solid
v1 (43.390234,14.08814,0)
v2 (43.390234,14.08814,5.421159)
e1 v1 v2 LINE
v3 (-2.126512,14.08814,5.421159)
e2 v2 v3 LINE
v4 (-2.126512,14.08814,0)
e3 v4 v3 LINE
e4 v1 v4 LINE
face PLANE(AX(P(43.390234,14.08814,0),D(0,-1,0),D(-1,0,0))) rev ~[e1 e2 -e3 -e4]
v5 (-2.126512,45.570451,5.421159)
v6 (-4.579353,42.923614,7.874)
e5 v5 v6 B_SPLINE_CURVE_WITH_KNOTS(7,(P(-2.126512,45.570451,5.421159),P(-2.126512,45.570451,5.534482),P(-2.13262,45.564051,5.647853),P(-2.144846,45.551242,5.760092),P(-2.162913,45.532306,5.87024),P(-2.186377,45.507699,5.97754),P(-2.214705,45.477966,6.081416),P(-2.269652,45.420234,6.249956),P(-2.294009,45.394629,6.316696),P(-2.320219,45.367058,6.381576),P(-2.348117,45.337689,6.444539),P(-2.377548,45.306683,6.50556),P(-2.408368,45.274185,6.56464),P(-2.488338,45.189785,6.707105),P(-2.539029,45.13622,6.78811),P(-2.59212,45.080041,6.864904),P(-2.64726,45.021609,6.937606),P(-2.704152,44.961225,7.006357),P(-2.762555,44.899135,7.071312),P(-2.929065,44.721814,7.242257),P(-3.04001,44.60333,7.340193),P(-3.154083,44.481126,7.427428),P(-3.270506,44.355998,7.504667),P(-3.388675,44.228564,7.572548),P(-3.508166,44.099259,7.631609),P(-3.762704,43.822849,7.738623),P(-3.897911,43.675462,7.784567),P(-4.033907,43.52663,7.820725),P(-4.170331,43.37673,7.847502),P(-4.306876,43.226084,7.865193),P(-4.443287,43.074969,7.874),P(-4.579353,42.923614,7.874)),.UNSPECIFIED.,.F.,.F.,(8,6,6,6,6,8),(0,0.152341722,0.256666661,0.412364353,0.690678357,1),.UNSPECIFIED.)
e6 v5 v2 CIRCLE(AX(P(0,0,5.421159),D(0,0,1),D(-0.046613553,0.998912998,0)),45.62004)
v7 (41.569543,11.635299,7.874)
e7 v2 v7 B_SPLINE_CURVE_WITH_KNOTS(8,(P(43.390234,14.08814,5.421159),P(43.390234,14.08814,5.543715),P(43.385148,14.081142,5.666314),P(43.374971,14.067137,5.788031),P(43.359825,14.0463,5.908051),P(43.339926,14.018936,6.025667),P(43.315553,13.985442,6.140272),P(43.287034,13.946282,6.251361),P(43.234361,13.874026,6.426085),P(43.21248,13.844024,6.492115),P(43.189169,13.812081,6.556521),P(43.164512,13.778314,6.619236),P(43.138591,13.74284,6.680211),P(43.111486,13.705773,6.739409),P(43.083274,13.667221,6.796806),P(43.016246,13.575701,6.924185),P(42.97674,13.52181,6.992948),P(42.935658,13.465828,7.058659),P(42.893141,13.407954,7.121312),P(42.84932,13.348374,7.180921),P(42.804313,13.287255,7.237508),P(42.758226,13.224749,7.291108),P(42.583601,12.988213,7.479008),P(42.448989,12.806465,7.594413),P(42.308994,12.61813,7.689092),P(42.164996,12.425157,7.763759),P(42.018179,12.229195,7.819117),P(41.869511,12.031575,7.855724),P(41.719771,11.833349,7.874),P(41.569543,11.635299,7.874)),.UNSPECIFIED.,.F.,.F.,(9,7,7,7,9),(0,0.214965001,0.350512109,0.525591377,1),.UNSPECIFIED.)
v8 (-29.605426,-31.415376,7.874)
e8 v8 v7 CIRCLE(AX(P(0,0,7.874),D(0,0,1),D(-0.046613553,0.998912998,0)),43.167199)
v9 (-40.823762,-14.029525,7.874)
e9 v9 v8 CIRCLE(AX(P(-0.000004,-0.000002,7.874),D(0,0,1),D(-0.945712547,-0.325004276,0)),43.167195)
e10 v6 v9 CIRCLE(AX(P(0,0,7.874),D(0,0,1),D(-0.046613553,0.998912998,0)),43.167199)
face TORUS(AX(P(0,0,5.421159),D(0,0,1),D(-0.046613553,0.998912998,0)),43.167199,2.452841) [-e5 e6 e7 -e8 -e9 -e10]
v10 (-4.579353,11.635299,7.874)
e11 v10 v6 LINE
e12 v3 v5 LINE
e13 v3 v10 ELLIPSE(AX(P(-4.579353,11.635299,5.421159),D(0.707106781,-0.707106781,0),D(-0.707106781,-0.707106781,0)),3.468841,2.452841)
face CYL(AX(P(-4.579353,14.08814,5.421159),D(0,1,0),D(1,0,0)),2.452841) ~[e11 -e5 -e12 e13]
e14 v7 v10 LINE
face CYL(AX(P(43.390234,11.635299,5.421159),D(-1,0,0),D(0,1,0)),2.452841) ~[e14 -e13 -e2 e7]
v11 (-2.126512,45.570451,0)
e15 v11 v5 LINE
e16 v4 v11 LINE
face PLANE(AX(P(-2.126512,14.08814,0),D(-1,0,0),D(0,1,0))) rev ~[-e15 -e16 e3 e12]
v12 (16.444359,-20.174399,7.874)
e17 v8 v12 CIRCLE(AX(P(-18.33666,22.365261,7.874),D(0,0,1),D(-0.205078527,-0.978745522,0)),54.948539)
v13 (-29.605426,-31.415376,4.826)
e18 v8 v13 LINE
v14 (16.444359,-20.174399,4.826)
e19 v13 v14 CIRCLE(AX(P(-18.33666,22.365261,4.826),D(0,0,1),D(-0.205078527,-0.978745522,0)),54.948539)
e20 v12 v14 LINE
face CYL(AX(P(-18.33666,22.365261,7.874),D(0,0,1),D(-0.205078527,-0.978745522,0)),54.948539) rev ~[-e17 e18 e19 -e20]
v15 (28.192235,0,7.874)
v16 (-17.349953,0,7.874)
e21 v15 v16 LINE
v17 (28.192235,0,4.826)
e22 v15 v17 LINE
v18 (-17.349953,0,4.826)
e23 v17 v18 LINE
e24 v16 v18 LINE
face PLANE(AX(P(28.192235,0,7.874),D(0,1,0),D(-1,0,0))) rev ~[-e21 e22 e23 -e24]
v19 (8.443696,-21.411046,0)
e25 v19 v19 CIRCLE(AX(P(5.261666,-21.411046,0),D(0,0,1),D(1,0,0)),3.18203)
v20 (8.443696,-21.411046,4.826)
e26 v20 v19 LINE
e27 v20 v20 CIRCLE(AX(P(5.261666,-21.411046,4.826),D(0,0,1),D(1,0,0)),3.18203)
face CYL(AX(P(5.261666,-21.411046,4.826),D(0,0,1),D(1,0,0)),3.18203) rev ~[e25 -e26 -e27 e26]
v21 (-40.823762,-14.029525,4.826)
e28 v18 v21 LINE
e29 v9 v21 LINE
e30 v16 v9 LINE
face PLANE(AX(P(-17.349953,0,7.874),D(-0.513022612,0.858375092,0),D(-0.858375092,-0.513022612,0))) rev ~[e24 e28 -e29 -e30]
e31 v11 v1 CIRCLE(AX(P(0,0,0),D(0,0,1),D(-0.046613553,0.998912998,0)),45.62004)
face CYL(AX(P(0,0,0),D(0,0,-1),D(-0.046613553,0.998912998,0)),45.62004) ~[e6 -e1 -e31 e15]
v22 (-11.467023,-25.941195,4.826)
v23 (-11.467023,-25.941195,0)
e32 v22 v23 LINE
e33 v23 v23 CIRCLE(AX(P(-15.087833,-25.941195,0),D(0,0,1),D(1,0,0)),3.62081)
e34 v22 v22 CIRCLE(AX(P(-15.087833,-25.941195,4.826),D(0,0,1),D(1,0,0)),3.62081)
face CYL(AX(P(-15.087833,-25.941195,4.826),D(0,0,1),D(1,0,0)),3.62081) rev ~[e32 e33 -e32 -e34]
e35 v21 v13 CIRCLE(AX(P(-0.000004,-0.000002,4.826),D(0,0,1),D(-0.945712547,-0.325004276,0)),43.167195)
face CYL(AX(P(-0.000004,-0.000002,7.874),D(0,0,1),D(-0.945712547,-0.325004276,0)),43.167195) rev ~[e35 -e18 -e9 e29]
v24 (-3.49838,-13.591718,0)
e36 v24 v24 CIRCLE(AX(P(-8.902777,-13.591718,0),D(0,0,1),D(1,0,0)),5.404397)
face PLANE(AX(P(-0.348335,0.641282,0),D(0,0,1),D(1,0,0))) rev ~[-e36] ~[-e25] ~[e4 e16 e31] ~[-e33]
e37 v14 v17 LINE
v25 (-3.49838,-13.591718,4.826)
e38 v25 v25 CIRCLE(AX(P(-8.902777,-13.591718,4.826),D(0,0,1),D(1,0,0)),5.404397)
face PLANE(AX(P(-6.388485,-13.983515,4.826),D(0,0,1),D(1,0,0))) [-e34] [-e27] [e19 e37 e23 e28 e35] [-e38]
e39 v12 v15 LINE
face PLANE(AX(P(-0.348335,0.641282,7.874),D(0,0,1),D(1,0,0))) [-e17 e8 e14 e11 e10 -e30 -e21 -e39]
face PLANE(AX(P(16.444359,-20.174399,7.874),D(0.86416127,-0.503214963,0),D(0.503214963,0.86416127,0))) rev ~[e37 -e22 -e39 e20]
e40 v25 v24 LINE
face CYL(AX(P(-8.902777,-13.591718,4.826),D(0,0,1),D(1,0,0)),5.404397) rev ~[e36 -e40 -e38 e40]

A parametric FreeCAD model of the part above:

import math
import FreeCAD as App
import Part
import Sketcher
Q = App.Units.Quantity


def edges_at(feature, points):
    """Names of the edges that pass closest to the given points."""
    edges = feature.Shape.Edges
    near = lambda p: min(range(len(edges)), key=lambda i: edges[i].distToShape(Part.Vertex(*p))[0])
    return sorted({f"Edge{near(p) + 1}" for p in points})

doc = App.newDocument("Part")
params = doc.addObject("Spreadsheet::Sheet", "Params")
for row, (alias, value) in enumerate([
    ("pad1_length", "0.31 in"),
    ("fillet_radius", "2.452841 mm"),
    ("pocket1_length", "0.12 in"),
    ("pocket2_length", "1 in"),
], start=1):
    params.set(f"A{row}", alias)
    params.set(f"B{row}", "=" + value)
    params.setAlias(f"B{row}", alias)

body = doc.addObject("PartDesign::Body", "Body")

# Sketch on XY plane
sketch1 = body.newObject("Sketcher::SketchObject", "Sketch")
sketch1.AttachmentSupport = (doc.getObject("XY_Plane"), [""])
sketch1.MapMode = "FlatFace"
sketch1.addGeometry([
    Part.LineSegment(App.Vector(-2, 14, 0), App.Vector(-2, 46, 0)),
    Part.ArcOfCircle(Part.Circle(App.Vector(0, 0, 0), App.Vector(0, 0, 1), 46), math.radians(93), math.radians(378)),
    Part.LineSegment(App.Vector(43, 14, 0), App.Vector(-2, 14, 0)),
], False)
sketch1.addConstraint([
    Sketcher.Constraint("Coincident", 0, 2, 1, 1),
    Sketcher.Constraint("Coincident", 1, 2, 2, 1),
    Sketcher.Constraint("Coincident", 2, 2, 0, 1),
    Sketcher.Constraint("Vertical", 0),
    Sketcher.Constraint("Horizontal", 2),
    Sketcher.Constraint("Coincident", 1, 3, -1, 1),
    Sketcher.Constraint("Radius", 1, Q("45.62004 mm")),
    Sketcher.Constraint("DistanceY", 0, 1, 0, 2, Q("31.482311 mm")),
    Sketcher.Constraint("DistanceX", 2, 2, 2, 1, Q("45.516746 mm")),
])
pad1 = body.newObject("PartDesign::Pad", "Pad")
pad1.Profile = sketch1
pad1.setExpression("Length", "Params.pad1_length")
doc.recompute()

fillet = body.newObject("PartDesign::Fillet", "Fillet")
fillet.Base = (pad1, edges_at(pad1, [(20.632, 14.088, 7.874), (-2.127, 29.829, 7.874), (-25.951, -37.52, 7.874)]))
fillet.setExpression("Radius", "Params.fillet_radius")

# Sketch on XY plane
sketch2 = body.newObject("Sketcher::SketchObject", "Sketch001")
sketch2.AttachmentSupport = (doc.getObject("XY_Plane"), [""])
sketch2.MapMode = "FlatFace"
sketch2.AttachmentOffset = App.Placement(App.Vector(0, 0, 0.31 * 25.4), App.Rotation())
sketch2.addGeometry([
    Part.ArcOfCircle(Part.Circle(App.Vector(0, 0, 0), App.Vector(0, 0, 1), 43), math.radians(-161), math.radians(-133)),  # 0
    Part.ArcOfCircle(Part.Circle(App.Vector(-18, 22, 0), App.Vector(0, 0, 1), 55), math.radians(-102), math.radians(-51)),  # 1
    Part.LineSegment(App.Vector(16, -20, 0), App.Vector(28, 0, 0)),  # 2
    Part.LineSegment(App.Vector(28, 0, 0), App.Vector(-17, 0, 0)),  # 3
    Part.LineSegment(App.Vector(-17, 0, 0), App.Vector(-41, -14, 0)),  # 4
], False)
sketch2.addConstraint([
    Sketcher.Constraint("Coincident", 0, 2, 1, 1),
    Sketcher.Constraint("Coincident", 1, 2, 2, 1),
    Sketcher.Constraint("Coincident", 2, 2, 3, 1),
    Sketcher.Constraint("Coincident", 3, 2, 4, 1),
    Sketcher.Constraint("Coincident", 4, 2, 0, 1),
    Sketcher.Constraint("Horizontal", 3),
    Sketcher.Constraint("Coincident", 0, 3, -1, 1),
    Sketcher.Constraint("PointOnObject", 2, 2, -1),
    Sketcher.Constraint("Radius", 1, Q("54.948539 mm")),
    Sketcher.Constraint("Radius", 0, Q("43.167195 mm")),
    Sketcher.Constraint("DistanceY", 1, 2, -1, 1, Q("20.174399 mm")),
    Sketcher.Constraint("DistanceX", 4, 2, 1, 3, Q("22.487102 mm")),
    Sketcher.Constraint("Distance", 2, Q("23.345641 mm")),
    Sketcher.Constraint("DistanceX", 3, 2, 3, 1, Q("45.542188 mm")),
    Sketcher.Constraint("DistanceX", 1, 3, -1, 1, Q("18.33666 mm")),
    Sketcher.Constraint("DistanceY", -1, 1, 1, 3, Q("22.365261 mm")),
])
pocket1 = body.newObject("PartDesign::Pocket", "Pocket")
pocket1.Profile = sketch2
pocket1.setExpression("Length", "Params.pocket1_length")

# Sketch on XY plane
sketch3 = body.newObject("Sketcher::SketchObject", "Sketch002")
sketch3.AttachmentSupport = (doc.getObject("XY_Plane"), [""])
sketch3.MapMode = "FlatFace"
sketch3.AttachmentOffset = App.Placement(App.Vector(0, 0, 0.19 * 25.4), App.Rotation())
sketch3.addGeometry([
    Part.Circle(App.Vector(-8.9, -13.6, 0), App.Vector(0, 0, 1), 5.4),
    Part.Circle(App.Vector(-15.1, -25.9, 0), App.Vector(0, 0, 1), 3.6),
    Part.Circle(App.Vector(5.3, -21.4, 0), App.Vector(0, 0, 1), 3.2),
], False)
sketch3.addConstraint([
    Sketcher.Constraint("Diameter", 1, Q("7.24162 mm")),
    Sketcher.Constraint("Diameter", 2, Q("6.36406 mm")),
    Sketcher.Constraint("Diameter", 0, Q("10.808794 mm")),
    Sketcher.Constraint("DistanceY", 1, 3, 0, 3, Q("0.4861999 in")),
    Sketcher.Constraint("DistanceX", 1, 3, 2, 3, Q("20.349499 mm")),
    Sketcher.Constraint("DistanceY", 1, 3, 2, 3, Q("4.530149 mm")),
    Sketcher.Constraint("DistanceX", 0, 3, -1, 1, Q("8.902777 mm")),
    Sketcher.Constraint("DistanceY", 0, 3, -1, 1, Q("13.591718 mm")),
    Sketcher.Constraint("DistanceX", 1, 3, -1, 1, Q("15.087833 mm")),
])
pocket2 = body.newObject("PartDesign::Pocket", "Pocket001")
pocket2.Profile = sketch3
pocket2.setExpression("Length", "Params.pocket2_length")

doc.recompute()
